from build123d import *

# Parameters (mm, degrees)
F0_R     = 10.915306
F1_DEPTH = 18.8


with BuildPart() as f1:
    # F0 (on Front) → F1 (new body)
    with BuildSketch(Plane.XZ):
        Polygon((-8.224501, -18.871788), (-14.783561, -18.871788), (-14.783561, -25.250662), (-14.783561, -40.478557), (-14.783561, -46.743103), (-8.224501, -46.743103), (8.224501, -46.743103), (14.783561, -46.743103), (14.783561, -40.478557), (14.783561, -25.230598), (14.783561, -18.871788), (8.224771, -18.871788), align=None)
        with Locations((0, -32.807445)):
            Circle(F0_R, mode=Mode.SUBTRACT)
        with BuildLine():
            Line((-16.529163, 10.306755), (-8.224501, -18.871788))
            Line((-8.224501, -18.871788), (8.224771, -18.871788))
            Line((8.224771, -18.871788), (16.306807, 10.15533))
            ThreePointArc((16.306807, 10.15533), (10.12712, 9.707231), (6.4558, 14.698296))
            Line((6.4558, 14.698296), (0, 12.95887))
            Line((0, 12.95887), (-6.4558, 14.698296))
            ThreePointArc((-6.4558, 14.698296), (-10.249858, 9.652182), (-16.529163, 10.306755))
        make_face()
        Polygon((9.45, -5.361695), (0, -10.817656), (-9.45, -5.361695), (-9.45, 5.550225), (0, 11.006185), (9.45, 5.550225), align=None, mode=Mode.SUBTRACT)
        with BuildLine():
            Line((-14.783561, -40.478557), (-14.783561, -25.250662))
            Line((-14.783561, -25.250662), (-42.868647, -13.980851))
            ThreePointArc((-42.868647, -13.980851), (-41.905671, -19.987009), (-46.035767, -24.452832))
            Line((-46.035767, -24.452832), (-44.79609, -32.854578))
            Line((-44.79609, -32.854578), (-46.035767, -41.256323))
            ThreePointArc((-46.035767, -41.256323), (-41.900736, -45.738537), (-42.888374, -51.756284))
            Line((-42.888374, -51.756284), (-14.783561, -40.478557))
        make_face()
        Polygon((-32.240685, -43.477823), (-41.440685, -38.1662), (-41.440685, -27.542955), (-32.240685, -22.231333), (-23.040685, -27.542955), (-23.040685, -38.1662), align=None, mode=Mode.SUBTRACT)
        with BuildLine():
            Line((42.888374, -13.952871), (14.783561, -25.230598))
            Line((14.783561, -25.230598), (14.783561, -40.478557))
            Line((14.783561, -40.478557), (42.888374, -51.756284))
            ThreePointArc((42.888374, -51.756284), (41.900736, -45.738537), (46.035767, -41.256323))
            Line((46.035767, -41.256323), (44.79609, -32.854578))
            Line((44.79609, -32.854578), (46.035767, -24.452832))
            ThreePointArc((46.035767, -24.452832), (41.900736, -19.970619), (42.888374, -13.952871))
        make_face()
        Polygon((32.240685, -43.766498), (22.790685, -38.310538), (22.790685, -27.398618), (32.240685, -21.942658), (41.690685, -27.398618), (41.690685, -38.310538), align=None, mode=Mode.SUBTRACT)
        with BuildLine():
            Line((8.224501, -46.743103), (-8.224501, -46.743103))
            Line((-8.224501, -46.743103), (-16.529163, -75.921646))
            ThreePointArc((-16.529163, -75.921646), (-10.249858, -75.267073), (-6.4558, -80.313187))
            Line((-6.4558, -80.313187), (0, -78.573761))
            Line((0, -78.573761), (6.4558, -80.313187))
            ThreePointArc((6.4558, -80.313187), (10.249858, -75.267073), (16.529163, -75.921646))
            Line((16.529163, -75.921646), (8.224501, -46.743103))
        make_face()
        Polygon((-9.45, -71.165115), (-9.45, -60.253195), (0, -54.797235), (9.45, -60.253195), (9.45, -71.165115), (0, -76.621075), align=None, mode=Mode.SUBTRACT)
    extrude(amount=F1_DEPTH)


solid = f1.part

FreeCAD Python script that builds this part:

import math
import FreeCAD as App
import Part
import Sketcher

V = App.Vector
Q = App.Units.Quantity

doc = App.newDocument("Part")
params = doc.addObject("Spreadsheet::Sheet", "Params")
for row, (alias, value) in enumerate([
    ("pad1_length", "18.8 mm"),
], start=1):
    params.set(f"A{row}", alias)
    params.set(f"B{row}", "=" + value)
    params.setAlias(f"B{row}", alias)

body = doc.addObject("PartDesign::Body", "Body")

# Sketch on XZ plane
sketch1 = body.newObject("Sketcher::SketchObject", "Sketch")
sketch1.AttachmentSupport = (doc.getObject("XZ_Plane"), [""])
sketch1.MapMode = "FlatFace"
sketch1.addGeometry([
    Part.LineSegment(V(-14.783561, -18.871788, 0), V(-14.783561, -25.250662, 0)),  # 0
    Part.LineSegment(V(-14.783561, -25.250662, 0), V(-42.868647, -13.980851, 0)),  # 1
    Part.ArcOfCircle(Part.Circle(V(-48.561859, -17.973929, 0), V(0, 0, 1), 6.953943), math.radians(-68.69944), math.radians(35.044867)),  # 2
    Part.LineSegment(V(-46.035767, -24.452832, 0), V(-44.79609, -32.854578, 0)),  # 3
    Part.LineSegment(V(-44.79609, -32.854578, 0), V(-46.035767, -41.256323, 0)),  # 4
    Part.ArcOfCircle(Part.Circle(V(-48.56186, -47.735227, 0), V(0, 0, 1), 6.953944), math.radians(-35.326933), math.radians(68.699434)),  # 5
    Part.LineSegment(V(-42.888374, -51.756284, 0), V(-14.783561, -40.478557, 0)),  # 6
    Part.LineSegment(V(-14.783561, -40.478557, 0), V(-14.783561, -46.743103, 0)),  # 7
    Part.LineSegment(V(-14.783561, -46.743103, 0), V(-8.224501, -46.743103, 0)),  # 8
    Part.LineSegment(V(-8.224501, -46.743103, 0), V(-16.529163, -75.921646, 0)),  # 9
    Part.ArcOfCircle(Part.Circle(V(-12.811181, -81.142263, 0), V(0, 0, 1), 6.40923), math.radians(7.432413), math.radians(125.45744)),  # 10
    Part.LineSegment(V(-6.4558, -80.313187, 0), V(0, -78.573761, 0)),  # 11
    Part.LineSegment(V(0, -78.573761, 0), V(6.4558, -80.313187, 0)),  # 12
    Part.ArcOfCircle(Part.Circle(V(12.811181, -81.142263, 0), V(0, 0, 1), 6.40923), math.radians(54.54256), math.radians(172.567587)),  # 13
    Part.LineSegment(V(16.529163, -75.921646, 0), V(8.224501, -46.743103, 0)),  # 14
    Part.LineSegment(V(8.224501, -46.743103, 0), V(14.783561, -46.743103, 0)),  # 15
    Part.LineSegment(V(14.783561, -46.743103, 0), V(14.783561, -40.478557, 0)),  # 16
    Part.LineSegment(V(14.783561, -40.478557, 0), V(42.888374, -51.756284, 0)),  # 17
    Part.ArcOfCircle(Part.Circle(V(48.56186, -47.735227, 0), V(0, 0, 1), 6.953944), math.radians(111.300566), math.radians(215.326933)),  # 18
    Part.LineSegment(V(46.035767, -41.256323, 0), V(44.79609, -32.854578, 0)),  # 19
    Part.LineSegment(V(44.79609, -32.854578, 0), V(46.035767, -24.452832, 0)),  # 20
    Part.ArcOfCircle(Part.Circle(V(48.561859, -17.973928, 0), V(0, 0, 1), 6.953944), math.radians(144.673063), math.radians(248.699439)),  # 21
    Part.LineSegment(V(42.888374, -13.952871, 0), V(14.783561, -25.230598, 0)),  # 22
    Part.LineSegment(V(14.783561, -25.230598, 0), V(14.783561, -18.871788, 0)),  # 23
    Part.LineSegment(V(14.783561, -18.871788, 0), V(8.224771, -18.871788, 0)),  # 24
    Part.LineSegment(V(8.224771, -18.871788, 0), V(16.306807, 10.15533, 0)),  # 25
    Part.ArcOfCircle(Part.Circle(V(12.811182, 15.527374, 0), V(0, 0, 1), 6.409231), math.radians(-172.567575), math.radians(-56.947674)),  # 26
    Part.LineSegment(V(6.4558, 14.698296, 0), V(0, 12.95887, 0)),  # 27
    Part.LineSegment(V(0, 12.95887, 0), V(-6.4558, 14.698296, 0)),  # 28
    Part.ArcOfCircle(Part.Circle(V(-12.811181, 15.527372, 0), V(0, 0, 1), 6.40923), math.radians(-125.45744), math.radians(-7.432413)),  # 29
    Part.LineSegment(V(-16.529163, 10.306755, 0), V(-8.224501, -18.871788, 0)),  # 30
    Part.LineSegment(V(-8.224501, -18.871788, 0), V(-14.783561, -18.871788, 0)),  # 31
    Part.LineSegment(V(0, -76.621075, 0), V(-9.45, -71.165115, 0)),  # 32
    Part.LineSegment(V(-9.45, -71.165115, 0), V(-9.45, -60.253195, 0)),  # 33
    Part.LineSegment(V(-9.45, -60.253195, 0), V(0, -54.797235, 0)),  # 34
    Part.LineSegment(V(0, -54.797235, 0), V(9.45, -60.253195, 0)),  # 35
    Part.LineSegment(V(9.45, -60.253195, 0), V(9.45, -71.165115, 0)),  # 36
    Part.LineSegment(V(9.45, -71.165115, 0), V(0, -76.621075, 0)),  # 37
    Part.LineSegment(V(-23.040685, -38.1662, 0), V(-32.240685, -43.477823, 0)),  # 38
    Part.LineSegment(V(-32.240685, -43.477823, 0), V(-41.440685, -38.1662, 0)),  # 39
    Part.LineSegment(V(-41.440685, -38.1662, 0), V(-41.440685, -27.542955, 0)),  # 40
    Part.LineSegment(V(-41.440685, -27.542955, 0), V(-32.240685, -22.231333, 0)),  # 41
    Part.LineSegment(V(-32.240685, -22.231333, 0), V(-23.040685, -27.542955, 0)),  # 42
    Part.LineSegment(V(-23.040685, -27.542955, 0), V(-23.040685, -38.1662, 0)),  # 43
    Part.LineSegment(V(41.690685, -38.310538, 0), V(32.240685, -43.766498, 0)),  # 44
    Part.LineSegment(V(32.240685, -43.766498, 0), V(22.790685, -38.310538, 0)),  # 45
    Part.LineSegment(V(22.790685, -38.310538, 0), V(22.790685, -27.398618, 0)),  # 46
    Part.LineSegment(V(22.790685, -27.398618, 0), V(32.240685, -21.942658, 0)),  # 47
    Part.LineSegment(V(32.240685, -21.942658, 0), V(41.690685, -27.398618, 0)),  # 48
    Part.LineSegment(V(41.690685, -27.398618, 0), V(41.690685, -38.310538, 0)),  # 49
    Part.Circle(V(0, -32.807445, 0), V(0, 0, 1), 10.915306),  # 50
    Part.LineSegment(V(9.45, 5.550225, 0), V(9.45, -5.361695, 0)),  # 51
    Part.LineSegment(V(9.45, -5.361695, 0), V(0, -10.817656, 0)),  # 52
    Part.LineSegment(V(0, -10.817656, 0), V(-9.45, -5.361695, 0)),  # 53
    Part.LineSegment(V(-9.45, -5.361695, 0), V(-9.45, 5.550225, 0)),  # 54
    Part.LineSegment(V(-9.45, 5.550225, 0), V(0, 11.006185, 0)),  # 55
    Part.LineSegment(V(0, 11.006185, 0), V(9.45, 5.550225, 0)),  # 56
], False)
sketch1.addConstraint([
    Sketcher.Constraint("Coincident", 0, 2, 1, 1),
    Sketcher.Constraint("Coincident", 1, 2, 2, 2),
    Sketcher.Constraint("Coincident", 2, 1, 3, 1),
    Sketcher.Constraint("Coincident", 3, 2, 4, 1),
    Sketcher.Constraint("Coincident", 4, 2, 5, 2),
    Sketcher.Constraint("Coincident", 5, 1, 6, 1),
    Sketcher.Constraint("Coincident", 6, 2, 7, 1),
    Sketcher.Constraint("Coincident", 7, 2, 8, 1),
    Sketcher.Constraint("Coincident", 8, 2, 9, 1),
    Sketcher.Constraint("Coincident", 9, 2, 10, 2),
    Sketcher.Constraint("Coincident", 10, 1, 11, 1),
    Sketcher.Constraint("Coincident", 11, 2, 12, 1),
    Sketcher.Constraint("Coincident", 12, 2, 13, 2),
    Sketcher.Constraint("Coincident", 13, 1, 14, 1),
    Sketcher.Constraint("Coincident", 14, 2, 15, 1),
    Sketcher.Constraint("Coincident", 15, 2, 16, 1),
    Sketcher.Constraint("Coincident", 16, 2, 17, 1),
    Sketcher.Constraint("Coincident", 17, 2, 18, 2),
    Sketcher.Constraint("Coincident", 18, 1, 19, 1),
    Sketcher.Constraint("Coincident", 19, 2, 20, 1),
    Sketcher.Constraint("Coincident", 20, 2, 21, 2),
    Sketcher.Constraint("Coincident", 21, 1, 22, 1),
    Sketcher.Constraint("Coincident", 22, 2, 23, 1),
    Sketcher.Constraint("Coincident", 23, 2, 24, 1),
    Sketcher.Constraint("Coincident", 24, 2, 25, 1),
    Sketcher.Constraint("Coincident", 25, 2, 26, 2),
    Sketcher.Constraint("Coincident", 26, 1, 27, 1),
    Sketcher.Constraint("Coincident", 27, 2, 28, 1),
    Sketcher.Constraint("Coincident", 28, 2, 29, 2),
    Sketcher.Constraint("Coincident", 29, 1, 30, 1),
    Sketcher.Constraint("Coincident", 30, 2, 31, 1),
    Sketcher.Constraint("Coincident", 31, 2, 0, 1),
    Sketcher.Constraint("Coincident", 32, 2, 33, 1),
    Sketcher.Constraint("Coincident", 33, 2, 34, 1),
    Sketcher.Constraint("Coincident", 34, 2, 35, 1),
    Sketcher.Constraint("Coincident", 35, 2, 36, 1),
    Sketcher.Constraint("Coincident", 36, 2, 37, 1),
    Sketcher.Constraint("Coincident", 37, 2, 32, 1),
    Sketcher.Constraint("Coincident", 38, 2, 39, 1),
    Sketcher.Constraint("Coincident", 39, 2, 40, 1),
    Sketcher.Constraint("Coincident", 40, 2, 41, 1),
    Sketcher.Constraint("Coincident", 41, 2, 42, 1),
    Sketcher.Constraint("Coincident", 42, 2, 43, 1),
    Sketcher.Constraint("Coincident", 43, 2, 38, 1),
    Sketcher.Constraint("Coincident", 44, 2, 45, 1),
    Sketcher.Constraint("Coincident", 45, 2, 46, 1),
    Sketcher.Constraint("Coincident", 46, 2, 47, 1),
    Sketcher.Constraint("Coincident", 47, 2, 48, 1),
    Sketcher.Constraint("Coincident", 48, 2, 49, 1),
    Sketcher.Constraint("Coincident", 49, 2, 44, 1),
    Sketcher.Constraint("Coincident", 51, 2, 52, 1),
    Sketcher.Constraint("Coincident", 52, 2, 53, 1),
    Sketcher.Constraint("Coincident", 53, 2, 54, 1),
    Sketcher.Constraint("Coincident", 54, 2, 55, 1),
    Sketcher.Constraint("Coincident", 55, 2, 56, 1),
    Sketcher.Constraint("Coincident", 56, 2, 51, 1),
    Sketcher.Constraint("Vertical", 0),
    Sketcher.Constraint("Vertical", 7),
    Sketcher.Constraint("Horizontal", 8),
    Sketcher.Constraint("Horizontal", 15),
    Sketcher.Constraint("Vertical", 16),
    Sketcher.Constraint("Vertical", 23),
    Sketcher.Constraint("Horizontal", 24),
    Sketcher.Constraint("Horizontal", 31),
    Sketcher.Constraint("Vertical", 33),
    Sketcher.Constraint("Vertical", 36),
    Sketcher.Constraint("Vertical", 40),
    Sketcher.Constraint("Vertical", 43),
    Sketcher.Constraint("Vertical", 46),
    Sketcher.Constraint("Vertical", 49),
    Sketcher.Constraint("Vertical", 51),
    Sketcher.Constraint("Vertical", 54),
    Sketcher.Constraint("Equal", 2, 5),
    Sketcher.Constraint("Equal", 10, 13),
    Sketcher.Constraint("Equal", 5, 18),
    Sketcher.Constraint("Equal", 18, 21),
    Sketcher.Constraint("Equal", 13, 26),
    Sketcher.Constraint("Equal", 26, 29),
    Sketcher.Constraint("Symmetric", 10, 3, 13, 3, -2),
    Sketcher.Constraint("Symmetric", 5, 3, 18, 3, -2),
    Sketcher.Constraint("Symmetric", 2, 3, 21, 3, -2),
    Sketcher.Constraint("Symmetric", 26, 3, 29, 3, -2),
    Sketcher.Constraint("Symmetric", 8, 2, 14, 2, -2),
    Sketcher.Constraint("Symmetric", 6, 2, 16, 2, -2),
    Sketcher.Constraint("Symmetric", 3, 2, 19, 2, -2),
    Sketcher.Constraint("Symmetric", 23, 2, 31, 2, -2),
    Sketcher.Constraint("Symmetric", 33, 2, 35, 2, -2),
    Sketcher.Constraint("Symmetric", 51, 2, 53, 2, -2),
    Sketcher.Constraint("PointOnObject", 50, 3, -2),
    Sketcher.Constraint("PointOnObject", 11, 2, -2),
    Sketcher.Constraint("PointOnObject", 27, 2, -2),
    Sketcher.Constraint("PointOnObject", 34, 2, -2),
    Sketcher.Constraint("PointOnObject", 37, 2, -2),
    Sketcher.Constraint("PointOnObject", 52, 2, -2),
    Sketcher.Constraint("PointOnObject", 55, 2, -2),
    Sketcher.Constraint("Parallel", 1, 17),
    Sketcher.Constraint("Parallel", 3, 19),
    Sketcher.Constraint("Parallel", 4, 20),
    Sketcher.Constraint("Parallel", 6, 22),
    Sketcher.Constraint("Parallel", 11, 27),
    Sketcher.Constraint("Parallel", 12, 28),
    Sketcher.Constraint("Parallel", 14, 30),
    Sketcher.Constraint("Parallel", 32, 35),
    Sketcher.Constraint("Parallel", 34, 37),
    Sketcher.Constraint("Parallel", 37, 38),
    Sketcher.Constraint("Parallel", 35, 39),
    Sketcher.Constraint("Parallel", 38, 41),
    Sketcher.Constraint("Parallel", 39, 42),
    Sketcher.Constraint("Parallel", 41, 44),
    Sketcher.Constraint("Parallel", 42, 45),
    Sketcher.Constraint("Parallel", 44, 47),
    Sketcher.Constraint("Parallel", 45, 48),
    Sketcher.Constraint("Parallel", 47, 52),
    Sketcher.Constraint("Parallel", 52, 55),
    Sketcher.Constraint("Parallel", 53, 56),
    Sketcher.Constraint("Horizontal", 10, 1, 12, 2),
    Sketcher.Constraint("Horizontal", 9, 2, 13, 1),
    Sketcher.Constraint("Horizontal", 5, 1, 17, 2),
    Sketcher.Constraint("Horizontal", 4, 2, 18, 1),
    Sketcher.Constraint("Horizontal", 40, 2, 42, 2),
    Sketcher.Constraint("Horizontal", 39, 2, 43, 2),
    Sketcher.Constraint("Horizontal", 46, 2, 48, 2),
    Sketcher.Constraint("Horizontal", 45, 2, 49, 2),
    Sketcher.Constraint("Vertical", 2, 3, 5, 3),
    Sketcher.Constraint("Vertical", 13, 3, 26, 3),
    Sketcher.Constraint("Vertical", 2, 1, 4, 2),
    Sketcher.Constraint("Vertical", 0, 2, 6, 2),
    Sketcher.Constraint("Vertical", 17, 2, 21, 1),
    Sketcher.Constraint("Vertical", 12, 2, 26, 1),
    Sketcher.Constraint("Vertical", 9, 2, 29, 1),
    Sketcher.Constraint("Vertical", 8, 2, 30, 2),
    Sketcher.Constraint("Vertical", 36, 2, 51, 2),
    Sketcher.Constraint("Equal", 36, 46),
    Sketcher.Constraint("Equal", 49, 51),
    Sketcher.Constraint("Equal", 37, 44),
    Sketcher.Constraint("Angle", 32, Q("150 deg")),
    Sketcher.Constraint("Diameter", 50, 21.830612),
    Sketcher.Constraint("DistanceX", 32, 2, -1, 1, 9.45),
    Sketcher.Constraint("Radius", 10, 6.40923),
    Sketcher.Constraint("Radius", 2, 6.953943),
    Sketcher.Constraint("DistanceX", 8, 1, 8, 2, 6.55906),
    Sketcher.Constraint("DistanceX", 24, 2, 24, 1, 6.55879),
    Sketcher.Constraint("DistanceY", 23, 1, 23, 2, 6.35881),
    Sketcher.Constraint("DistanceY", 33, 1, 33, 2, 10.91192),
    Sketcher.Constraint("DistanceX", 8, 2, -1, 1, 8.224501),
    Sketcher.Constraint("DistanceX", 10, 1, -1, 1, 6.4558),
    Sketcher.Constraint("DistanceY", 22, 2, -1, 1, 25.230598),
    Sketcher.Constraint("DistanceY", 39, 2, -1, 1, 38.1662),
    Sketcher.Constraint("Distance", 1, 30.261869),
    Sketcher.Constraint("Distance", 3, 8.492711),
    Sketcher.Constraint("Distance", 9, 30.33735),
    Sketcher.Constraint("Distance", 25, 30.131261),
    Sketcher.Constraint("DistanceY", 0, 2, 0, 1, 6.378874),
    Sketcher.Constraint("DistanceY", 7, 2, 7, 1, 6.264546),
    Sketcher.Constraint("DistanceY", 40, 1, 40, 2, 10.623245),
    Sketcher.Constraint("DistanceX", 2, 3, -1, 1, 48.561859),
    Sketcher.Constraint("DistanceY", 2, 3, -1, 1, 17.973929),
    Sketcher.Constraint("DistanceX", 10, 3, -1, 1, 12.811181),
    Sketcher.Constraint("DistanceY", 2, 1, -1, 1, 24.452832),
    Sketcher.Constraint("DistanceX", 3, 2, -1, 1, 44.79609),
    Sketcher.Constraint("DistanceY", 11, 2, -1, 1, 78.573761),
    Sketcher.Constraint("DistanceY", -1, 1, 25, 2, 10.15533),
    Sketcher.Constraint("DistanceY", 47, 2, -1, 1, 21.942658),
    Sketcher.Constraint("Distance", 38, 10.623245),
    Sketcher.Constraint("DistanceY", 50, 3, -1, 1, 32.807445),
    Sketcher.Constraint("DistanceY", 32, 2, -1, 1, 71.165115),
    Sketcher.Constraint("DistanceX", 38, 2, -1, 1, 32.240685),
    Sketcher.Constraint("DistanceX", -1, 1, 44, 2, 32.240685),
    Sketcher.Constraint("DistanceY", 51, 2, -1, 1, 5.361695),
])
pad1 = body.newObject("PartDesign::Pad", "Pad")
pad1.Profile = sketch1
pad1.setExpression("Length", "Params.pad1_length")

doc.recompute()
